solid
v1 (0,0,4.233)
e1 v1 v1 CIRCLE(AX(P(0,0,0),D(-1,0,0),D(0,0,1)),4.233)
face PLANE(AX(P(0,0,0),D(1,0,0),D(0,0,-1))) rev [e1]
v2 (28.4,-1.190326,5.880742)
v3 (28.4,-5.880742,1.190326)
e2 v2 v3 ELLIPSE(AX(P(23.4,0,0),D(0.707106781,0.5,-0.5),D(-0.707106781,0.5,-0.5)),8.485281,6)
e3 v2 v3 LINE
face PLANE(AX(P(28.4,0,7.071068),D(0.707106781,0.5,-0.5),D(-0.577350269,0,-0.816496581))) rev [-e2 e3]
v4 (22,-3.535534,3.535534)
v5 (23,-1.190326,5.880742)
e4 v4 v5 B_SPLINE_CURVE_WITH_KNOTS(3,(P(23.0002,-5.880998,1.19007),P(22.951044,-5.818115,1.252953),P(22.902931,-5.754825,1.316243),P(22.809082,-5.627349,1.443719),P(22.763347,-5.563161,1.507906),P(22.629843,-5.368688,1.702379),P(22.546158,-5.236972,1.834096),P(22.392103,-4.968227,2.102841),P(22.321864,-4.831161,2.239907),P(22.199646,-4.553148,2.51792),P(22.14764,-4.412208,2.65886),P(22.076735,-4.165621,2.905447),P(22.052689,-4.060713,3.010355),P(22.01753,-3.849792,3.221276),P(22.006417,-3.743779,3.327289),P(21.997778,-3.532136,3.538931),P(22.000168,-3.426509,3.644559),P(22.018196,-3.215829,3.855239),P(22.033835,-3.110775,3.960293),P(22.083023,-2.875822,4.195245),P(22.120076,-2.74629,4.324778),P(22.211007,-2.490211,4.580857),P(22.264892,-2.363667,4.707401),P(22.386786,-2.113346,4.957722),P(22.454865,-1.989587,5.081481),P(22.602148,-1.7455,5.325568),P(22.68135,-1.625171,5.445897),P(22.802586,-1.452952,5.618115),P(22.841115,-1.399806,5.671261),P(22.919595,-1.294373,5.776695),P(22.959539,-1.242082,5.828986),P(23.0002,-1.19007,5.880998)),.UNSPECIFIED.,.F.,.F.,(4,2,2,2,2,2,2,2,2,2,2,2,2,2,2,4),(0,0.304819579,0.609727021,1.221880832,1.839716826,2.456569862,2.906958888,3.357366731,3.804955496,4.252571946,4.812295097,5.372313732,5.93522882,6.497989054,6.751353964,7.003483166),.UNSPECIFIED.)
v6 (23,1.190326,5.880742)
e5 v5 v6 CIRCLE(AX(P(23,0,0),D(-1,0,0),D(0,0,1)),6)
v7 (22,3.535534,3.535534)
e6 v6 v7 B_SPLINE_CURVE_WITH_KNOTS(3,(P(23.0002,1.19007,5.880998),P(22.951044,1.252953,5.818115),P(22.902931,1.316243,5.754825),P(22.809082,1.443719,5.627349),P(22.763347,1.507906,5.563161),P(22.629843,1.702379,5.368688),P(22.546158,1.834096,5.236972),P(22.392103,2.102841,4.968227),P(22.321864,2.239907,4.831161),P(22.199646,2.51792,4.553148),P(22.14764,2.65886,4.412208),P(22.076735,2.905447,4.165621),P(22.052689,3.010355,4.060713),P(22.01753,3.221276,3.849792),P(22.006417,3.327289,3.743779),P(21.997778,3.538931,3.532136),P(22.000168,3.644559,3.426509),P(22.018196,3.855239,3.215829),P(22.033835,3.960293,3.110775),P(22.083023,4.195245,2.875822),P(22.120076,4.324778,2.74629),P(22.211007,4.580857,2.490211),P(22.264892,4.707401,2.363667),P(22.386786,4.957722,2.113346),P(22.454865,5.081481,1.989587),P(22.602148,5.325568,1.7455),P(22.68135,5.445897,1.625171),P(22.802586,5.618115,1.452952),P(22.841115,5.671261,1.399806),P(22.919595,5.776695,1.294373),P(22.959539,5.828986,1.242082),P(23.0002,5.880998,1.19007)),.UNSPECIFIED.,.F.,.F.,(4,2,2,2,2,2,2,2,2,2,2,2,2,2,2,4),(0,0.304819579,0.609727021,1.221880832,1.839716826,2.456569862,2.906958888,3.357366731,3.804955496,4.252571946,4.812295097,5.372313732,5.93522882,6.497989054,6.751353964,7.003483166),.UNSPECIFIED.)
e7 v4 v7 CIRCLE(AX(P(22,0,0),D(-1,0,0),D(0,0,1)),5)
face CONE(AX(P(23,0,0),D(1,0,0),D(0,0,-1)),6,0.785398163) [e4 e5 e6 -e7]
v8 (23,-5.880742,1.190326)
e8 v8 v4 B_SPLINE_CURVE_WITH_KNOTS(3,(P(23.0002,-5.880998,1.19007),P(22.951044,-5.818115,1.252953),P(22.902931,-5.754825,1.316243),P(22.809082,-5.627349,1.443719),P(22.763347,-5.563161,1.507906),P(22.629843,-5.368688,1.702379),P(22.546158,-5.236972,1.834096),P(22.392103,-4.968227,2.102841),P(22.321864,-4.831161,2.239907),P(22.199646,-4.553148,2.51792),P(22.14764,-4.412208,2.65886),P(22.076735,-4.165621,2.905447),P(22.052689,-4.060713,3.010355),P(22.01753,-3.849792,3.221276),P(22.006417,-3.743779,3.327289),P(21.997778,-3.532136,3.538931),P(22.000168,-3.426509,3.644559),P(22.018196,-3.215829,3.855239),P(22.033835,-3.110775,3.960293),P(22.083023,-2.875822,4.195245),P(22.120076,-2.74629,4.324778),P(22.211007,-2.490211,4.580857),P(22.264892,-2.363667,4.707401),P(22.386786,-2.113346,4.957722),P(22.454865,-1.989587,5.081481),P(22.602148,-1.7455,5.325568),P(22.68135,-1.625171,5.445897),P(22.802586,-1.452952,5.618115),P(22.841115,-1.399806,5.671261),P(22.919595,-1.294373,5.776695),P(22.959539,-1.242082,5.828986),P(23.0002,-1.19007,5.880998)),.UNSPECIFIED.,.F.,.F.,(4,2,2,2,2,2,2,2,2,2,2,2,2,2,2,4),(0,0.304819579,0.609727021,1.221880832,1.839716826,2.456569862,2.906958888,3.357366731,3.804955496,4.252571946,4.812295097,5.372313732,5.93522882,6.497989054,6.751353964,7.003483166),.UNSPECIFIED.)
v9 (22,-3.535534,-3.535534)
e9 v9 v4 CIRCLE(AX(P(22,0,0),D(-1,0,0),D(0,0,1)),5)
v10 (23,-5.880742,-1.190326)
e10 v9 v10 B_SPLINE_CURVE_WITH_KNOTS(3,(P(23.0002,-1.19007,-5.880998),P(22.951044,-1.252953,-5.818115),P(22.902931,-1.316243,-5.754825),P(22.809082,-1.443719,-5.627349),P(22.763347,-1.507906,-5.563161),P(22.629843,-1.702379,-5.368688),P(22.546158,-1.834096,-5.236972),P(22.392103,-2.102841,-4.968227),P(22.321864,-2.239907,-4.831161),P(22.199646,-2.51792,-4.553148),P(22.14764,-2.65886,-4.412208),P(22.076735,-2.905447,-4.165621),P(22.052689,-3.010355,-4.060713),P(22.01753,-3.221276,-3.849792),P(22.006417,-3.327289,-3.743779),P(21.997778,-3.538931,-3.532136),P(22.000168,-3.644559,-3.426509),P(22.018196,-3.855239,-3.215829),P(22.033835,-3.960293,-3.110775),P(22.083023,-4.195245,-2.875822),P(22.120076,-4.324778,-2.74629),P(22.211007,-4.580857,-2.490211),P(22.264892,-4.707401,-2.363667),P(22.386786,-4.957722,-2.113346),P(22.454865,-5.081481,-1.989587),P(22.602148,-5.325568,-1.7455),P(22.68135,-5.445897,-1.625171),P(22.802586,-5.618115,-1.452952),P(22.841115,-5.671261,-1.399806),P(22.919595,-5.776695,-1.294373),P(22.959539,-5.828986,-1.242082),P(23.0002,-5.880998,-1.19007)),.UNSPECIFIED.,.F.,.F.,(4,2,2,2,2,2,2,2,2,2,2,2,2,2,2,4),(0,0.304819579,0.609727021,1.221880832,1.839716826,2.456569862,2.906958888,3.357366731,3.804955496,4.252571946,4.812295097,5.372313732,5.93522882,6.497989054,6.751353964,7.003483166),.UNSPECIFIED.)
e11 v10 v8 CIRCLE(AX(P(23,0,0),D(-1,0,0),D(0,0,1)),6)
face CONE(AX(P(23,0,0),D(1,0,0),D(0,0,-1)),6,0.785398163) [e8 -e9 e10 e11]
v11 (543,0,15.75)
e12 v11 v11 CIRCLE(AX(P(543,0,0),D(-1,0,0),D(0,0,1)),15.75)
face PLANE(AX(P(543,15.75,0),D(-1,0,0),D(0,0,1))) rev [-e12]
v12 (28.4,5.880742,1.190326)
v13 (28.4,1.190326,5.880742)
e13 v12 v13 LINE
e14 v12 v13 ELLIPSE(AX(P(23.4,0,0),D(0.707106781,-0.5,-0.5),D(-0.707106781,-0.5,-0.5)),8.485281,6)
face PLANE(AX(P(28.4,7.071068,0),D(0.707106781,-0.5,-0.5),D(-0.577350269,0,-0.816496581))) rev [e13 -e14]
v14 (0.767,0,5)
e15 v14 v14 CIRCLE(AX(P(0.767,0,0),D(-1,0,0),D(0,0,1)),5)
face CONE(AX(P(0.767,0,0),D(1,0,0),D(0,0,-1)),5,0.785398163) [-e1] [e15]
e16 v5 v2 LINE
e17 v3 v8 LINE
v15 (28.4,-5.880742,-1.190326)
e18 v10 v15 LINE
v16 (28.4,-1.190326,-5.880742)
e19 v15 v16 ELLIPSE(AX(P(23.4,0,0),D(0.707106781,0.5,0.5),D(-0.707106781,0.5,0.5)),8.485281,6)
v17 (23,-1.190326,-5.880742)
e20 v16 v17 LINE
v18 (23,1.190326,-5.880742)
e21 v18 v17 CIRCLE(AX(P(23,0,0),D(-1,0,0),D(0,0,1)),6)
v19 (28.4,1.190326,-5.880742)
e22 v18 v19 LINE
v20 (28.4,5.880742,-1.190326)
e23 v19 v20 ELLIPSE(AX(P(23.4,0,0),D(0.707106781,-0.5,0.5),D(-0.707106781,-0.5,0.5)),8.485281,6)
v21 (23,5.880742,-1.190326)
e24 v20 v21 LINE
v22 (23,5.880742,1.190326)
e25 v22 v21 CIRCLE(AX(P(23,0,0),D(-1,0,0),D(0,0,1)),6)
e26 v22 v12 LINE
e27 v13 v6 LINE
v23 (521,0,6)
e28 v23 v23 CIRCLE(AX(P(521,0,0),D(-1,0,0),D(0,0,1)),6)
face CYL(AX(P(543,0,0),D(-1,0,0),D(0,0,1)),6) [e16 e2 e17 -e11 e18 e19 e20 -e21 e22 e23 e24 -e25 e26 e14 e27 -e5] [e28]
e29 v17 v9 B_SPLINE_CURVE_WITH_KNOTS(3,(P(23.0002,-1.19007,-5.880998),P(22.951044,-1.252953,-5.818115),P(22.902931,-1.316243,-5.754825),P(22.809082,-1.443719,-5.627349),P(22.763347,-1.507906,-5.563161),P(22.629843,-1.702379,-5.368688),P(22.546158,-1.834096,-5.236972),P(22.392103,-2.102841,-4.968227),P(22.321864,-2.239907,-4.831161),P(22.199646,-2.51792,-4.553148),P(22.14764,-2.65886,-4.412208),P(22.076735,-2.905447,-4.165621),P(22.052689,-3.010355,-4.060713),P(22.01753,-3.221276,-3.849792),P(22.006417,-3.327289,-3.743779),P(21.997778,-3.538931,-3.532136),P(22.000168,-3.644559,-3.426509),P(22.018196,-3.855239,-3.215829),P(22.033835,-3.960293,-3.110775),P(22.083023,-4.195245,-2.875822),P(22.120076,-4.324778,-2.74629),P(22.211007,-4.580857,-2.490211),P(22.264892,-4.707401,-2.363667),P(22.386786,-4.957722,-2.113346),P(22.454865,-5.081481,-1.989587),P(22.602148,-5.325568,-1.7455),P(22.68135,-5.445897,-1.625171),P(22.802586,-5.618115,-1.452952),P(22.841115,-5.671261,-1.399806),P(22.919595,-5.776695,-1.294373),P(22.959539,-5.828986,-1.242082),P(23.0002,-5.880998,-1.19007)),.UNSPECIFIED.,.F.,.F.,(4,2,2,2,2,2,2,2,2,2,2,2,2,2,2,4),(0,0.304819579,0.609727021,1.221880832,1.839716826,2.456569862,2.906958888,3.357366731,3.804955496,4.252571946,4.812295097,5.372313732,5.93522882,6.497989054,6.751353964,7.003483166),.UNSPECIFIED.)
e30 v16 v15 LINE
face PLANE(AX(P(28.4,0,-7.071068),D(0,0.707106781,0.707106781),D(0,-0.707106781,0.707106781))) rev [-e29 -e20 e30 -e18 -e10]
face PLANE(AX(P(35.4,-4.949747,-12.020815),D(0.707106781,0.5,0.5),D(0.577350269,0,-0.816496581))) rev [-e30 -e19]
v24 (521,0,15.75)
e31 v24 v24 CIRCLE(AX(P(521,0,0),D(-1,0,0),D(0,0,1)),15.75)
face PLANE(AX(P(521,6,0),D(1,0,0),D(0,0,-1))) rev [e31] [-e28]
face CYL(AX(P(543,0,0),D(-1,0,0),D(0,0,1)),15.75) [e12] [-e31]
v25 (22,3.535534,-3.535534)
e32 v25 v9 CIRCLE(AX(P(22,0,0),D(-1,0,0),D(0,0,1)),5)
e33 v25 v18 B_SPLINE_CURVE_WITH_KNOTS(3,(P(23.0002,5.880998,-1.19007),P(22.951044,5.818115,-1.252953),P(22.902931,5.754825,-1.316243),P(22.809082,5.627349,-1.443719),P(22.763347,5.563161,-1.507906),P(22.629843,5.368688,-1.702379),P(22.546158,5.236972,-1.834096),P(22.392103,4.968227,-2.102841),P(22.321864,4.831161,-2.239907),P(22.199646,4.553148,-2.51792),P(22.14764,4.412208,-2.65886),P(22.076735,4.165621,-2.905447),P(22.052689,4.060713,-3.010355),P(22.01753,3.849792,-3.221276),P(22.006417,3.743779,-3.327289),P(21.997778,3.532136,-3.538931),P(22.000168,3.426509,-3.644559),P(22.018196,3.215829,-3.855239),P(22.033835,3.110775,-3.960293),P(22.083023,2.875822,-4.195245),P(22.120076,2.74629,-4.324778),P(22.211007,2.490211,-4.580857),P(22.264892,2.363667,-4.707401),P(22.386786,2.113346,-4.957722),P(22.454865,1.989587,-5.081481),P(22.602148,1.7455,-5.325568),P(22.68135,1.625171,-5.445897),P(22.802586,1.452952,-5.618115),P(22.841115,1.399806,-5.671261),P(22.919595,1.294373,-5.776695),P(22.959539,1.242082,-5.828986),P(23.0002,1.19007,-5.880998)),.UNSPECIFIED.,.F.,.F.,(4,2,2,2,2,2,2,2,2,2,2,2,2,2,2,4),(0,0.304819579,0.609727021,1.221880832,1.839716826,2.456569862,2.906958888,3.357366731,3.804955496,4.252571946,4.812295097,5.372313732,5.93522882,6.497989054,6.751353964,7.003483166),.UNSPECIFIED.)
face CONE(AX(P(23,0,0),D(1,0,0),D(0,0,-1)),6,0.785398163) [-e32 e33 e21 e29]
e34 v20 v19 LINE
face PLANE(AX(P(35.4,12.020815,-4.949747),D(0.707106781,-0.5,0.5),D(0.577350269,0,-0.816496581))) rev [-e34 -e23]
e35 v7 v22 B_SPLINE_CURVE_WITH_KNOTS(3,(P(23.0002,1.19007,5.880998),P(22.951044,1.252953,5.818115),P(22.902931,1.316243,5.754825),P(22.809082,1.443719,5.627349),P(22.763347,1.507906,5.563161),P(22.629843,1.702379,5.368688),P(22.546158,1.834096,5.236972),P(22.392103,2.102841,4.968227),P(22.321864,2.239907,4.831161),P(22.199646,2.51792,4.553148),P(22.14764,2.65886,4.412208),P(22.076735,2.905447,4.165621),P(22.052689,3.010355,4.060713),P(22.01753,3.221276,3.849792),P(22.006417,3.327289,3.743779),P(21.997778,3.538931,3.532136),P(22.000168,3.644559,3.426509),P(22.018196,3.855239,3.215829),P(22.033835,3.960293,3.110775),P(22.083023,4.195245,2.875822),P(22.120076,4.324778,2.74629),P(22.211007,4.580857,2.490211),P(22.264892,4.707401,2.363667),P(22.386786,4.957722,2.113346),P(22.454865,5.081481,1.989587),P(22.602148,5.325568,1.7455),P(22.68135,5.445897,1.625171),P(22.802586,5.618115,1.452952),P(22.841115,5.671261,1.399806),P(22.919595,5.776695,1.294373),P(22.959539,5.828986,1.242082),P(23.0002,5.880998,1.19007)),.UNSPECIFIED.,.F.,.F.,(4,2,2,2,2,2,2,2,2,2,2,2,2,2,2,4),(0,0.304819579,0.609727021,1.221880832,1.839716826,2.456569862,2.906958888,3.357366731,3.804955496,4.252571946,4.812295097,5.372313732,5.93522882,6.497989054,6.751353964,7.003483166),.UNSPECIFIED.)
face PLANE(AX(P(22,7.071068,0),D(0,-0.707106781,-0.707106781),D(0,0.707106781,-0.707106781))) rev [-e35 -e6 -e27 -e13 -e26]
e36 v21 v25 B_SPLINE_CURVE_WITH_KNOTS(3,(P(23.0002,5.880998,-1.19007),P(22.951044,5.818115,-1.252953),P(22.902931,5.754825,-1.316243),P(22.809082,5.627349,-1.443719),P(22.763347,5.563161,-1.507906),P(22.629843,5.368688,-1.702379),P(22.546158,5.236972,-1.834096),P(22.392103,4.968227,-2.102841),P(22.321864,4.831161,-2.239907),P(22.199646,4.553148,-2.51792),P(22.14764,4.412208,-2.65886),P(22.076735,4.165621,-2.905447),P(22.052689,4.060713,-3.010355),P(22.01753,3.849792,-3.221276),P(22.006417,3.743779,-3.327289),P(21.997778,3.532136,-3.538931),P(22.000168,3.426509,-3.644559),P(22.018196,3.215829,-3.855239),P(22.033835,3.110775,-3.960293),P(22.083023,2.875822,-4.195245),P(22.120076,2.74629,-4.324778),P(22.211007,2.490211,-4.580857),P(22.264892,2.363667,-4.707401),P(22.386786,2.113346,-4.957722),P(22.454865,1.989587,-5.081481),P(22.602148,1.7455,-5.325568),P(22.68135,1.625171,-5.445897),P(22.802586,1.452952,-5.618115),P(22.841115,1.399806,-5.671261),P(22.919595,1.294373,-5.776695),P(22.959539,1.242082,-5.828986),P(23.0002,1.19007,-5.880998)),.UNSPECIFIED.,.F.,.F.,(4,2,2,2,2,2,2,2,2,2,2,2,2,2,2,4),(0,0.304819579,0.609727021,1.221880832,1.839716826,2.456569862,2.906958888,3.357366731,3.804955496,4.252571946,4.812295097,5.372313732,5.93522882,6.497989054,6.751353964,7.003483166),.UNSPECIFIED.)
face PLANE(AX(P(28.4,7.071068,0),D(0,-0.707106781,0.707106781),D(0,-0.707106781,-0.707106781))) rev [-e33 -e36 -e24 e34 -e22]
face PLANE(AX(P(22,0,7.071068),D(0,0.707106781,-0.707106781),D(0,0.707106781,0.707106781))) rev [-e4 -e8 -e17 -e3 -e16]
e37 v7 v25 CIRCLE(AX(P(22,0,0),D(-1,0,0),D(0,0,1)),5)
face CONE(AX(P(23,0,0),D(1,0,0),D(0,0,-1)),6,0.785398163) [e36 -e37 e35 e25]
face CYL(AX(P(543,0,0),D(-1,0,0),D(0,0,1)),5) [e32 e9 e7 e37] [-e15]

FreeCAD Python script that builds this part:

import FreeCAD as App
import Part
import Sketcher
from FreeCAD import Vector
Q = App.Units.Quantity

doc = App.newDocument("Part")
body = doc.addObject("PartDesign::Body", "Body")

# Sketch on XY plane
sketch1 = body.newObject("Sketcher::SketchObject", "Sketch")
sketch1.AttachmentSupport = (doc.getObject("XY_Plane"), [""])
sketch1.MapMode = "FlatFace"
sketch1.addGeometry([
    Part.LineSegment(Vector(0, 4.2, 0), Vector(0, 0, 0)),  # 0
    Part.LineSegment(Vector(0, 0, 0), Vector(543, 0, 0)),  # 1
    Part.LineSegment(Vector(543, 0, 0), Vector(543, 15.8, 0)),  # 2
    Part.LineSegment(Vector(543, 15.8, 0), Vector(521, 15.8, 0)),  # 3
    Part.LineSegment(Vector(521, 15.8, 0), Vector(521, 6, 0)),  # 4
    Part.LineSegment(Vector(521, 6, 0), Vector(23, 6, 0)),  # 5
    Part.LineSegment(Vector(23, 6, 0), Vector(22, 5, 0)),  # 6
    Part.LineSegment(Vector(22, 5, 0), Vector(0.8, 5, 0)),  # 7
    Part.LineSegment(Vector(0.8, 5, 0), Vector(0, 4.2, 0)),  # 8
], False)
sketch1.addConstraint([
    Sketcher.Constraint("Coincident", 0, 2, 1, 1),
    Sketcher.Constraint("Coincident", 1, 2, 2, 1),
    Sketcher.Constraint("Coincident", 2, 2, 3, 1),
    Sketcher.Constraint("Coincident", 3, 2, 4, 1),
    Sketcher.Constraint("Coincident", 4, 2, 5, 1),
    Sketcher.Constraint("Coincident", 5, 2, 6, 1),
    Sketcher.Constraint("Coincident", 6, 2, 7, 1),
    Sketcher.Constraint("Coincident", 7, 2, 8, 1),
    Sketcher.Constraint("Coincident", 8, 2, 0, 1),
    Sketcher.Constraint("Vertical", 0),
    Sketcher.Constraint("Horizontal", 1),
    Sketcher.Constraint("Vertical", 2),
    Sketcher.Constraint("Horizontal", 3),
    Sketcher.Constraint("Vertical", 4),
    Sketcher.Constraint("Horizontal", 5),
    Sketcher.Constraint("Horizontal", 7),
    Sketcher.Constraint("Coincident", 0, 2, -1, 1),
    Sketcher.Constraint("Parallel", 6, 8),
    Sketcher.Constraint("DistanceX", 1, 1, 1, 2, 543.0),
    Sketcher.Constraint("DistanceX", 3, 2, 3, 1, 22.0),
    Sketcher.Constraint("DistanceX", 5, 2, 5, 1, 498.0),
    Sketcher.Constraint("Angle", 6, Q("-135 deg")),
    Sketcher.Constraint("DistanceY", -1, 1, 4, 2, 6.0),
    Sketcher.Constraint("DistanceX", -1, 1, 6, 2, 22.0),
    Sketcher.Constraint("DistanceY", 2, 1, 2, 2, 15.75),
    Sketcher.Constraint("DistanceX", 7, 2, 7, 1, 21.233),
])
revolution = body.newObject("PartDesign::Revolution", "Revolution")
revolution.Profile = sketch1
revolution.ReferenceAxis = (sketch1, ["H_Axis"])
revolution.Angle = 360

# Sketch on an angled plane
sketch2 = body.newObject("Sketcher::SketchObject", "Sketch001")
sketch2.Placement = App.Placement(Vector(0, 0, 0), App.Rotation(Vector(1, 0, 0), Vector(0, 0.707106781, 0.707106781), Vector(0, -0.707106781, 0.707106781), "ZXY"))
sketch2.addGeometry([
    Part.LineSegment(Vector(-5, -12, 0), Vector(35.4, -12, 0)),  # 0
    Part.LineSegment(Vector(35.4, -12, 0), Vector(28.4, -5, 0)),  # 1
    Part.LineSegment(Vector(28.4, -5, 0), Vector(22, -5, 0)),  # 2
    Part.LineSegment(Vector(22, -5, 0), Vector(19.8, -7.2, 0)),  # 3
    Part.LineSegment(Vector(19.8, -7.2, 0), Vector(19.8, -10, 0)),  # 4
    Part.LineSegment(Vector(19.8, -10, 0), Vector(-3, -10, 0)),  # 5
    Part.LineSegment(Vector(-3, -10, 0), Vector(-3, 10, 0)),  # 6
    Part.LineSegment(Vector(-3, 10, 0), Vector(19.8, 10, 0)),  # 7
    Part.LineSegment(Vector(19.8, 10, 0), Vector(19.8, 7.2, 0)),  # 8
    Part.LineSegment(Vector(19.8, 7.2, 0), Vector(22, 5, 0)),  # 9
    Part.LineSegment(Vector(22, 5, 0), Vector(28.4, 5, 0)),  # 10
    Part.LineSegment(Vector(28.4, 5, 0), Vector(35.4, 12, 0)),  # 11
    Part.LineSegment(Vector(35.4, 12, 0), Vector(-5, 12, 0)),  # 12
    Part.LineSegment(Vector(-5, 12, 0), Vector(-5, -12, 0)),  # 13
], False)
sketch2.addConstraint([
    Sketcher.Constraint("Coincident", 0, 2, 1, 1),
    Sketcher.Constraint("Coincident", 1, 2, 2, 1),
    Sketcher.Constraint("Coincident", 2, 2, 3, 1),
    Sketcher.Constraint("Coincident", 3, 2, 4, 1),
    Sketcher.Constraint("Coincident", 4, 2, 5, 1),
    Sketcher.Constraint("Coincident", 5, 2, 6, 1),
    Sketcher.Constraint("Coincident", 6, 2, 7, 1),
    Sketcher.Constraint("Coincident", 7, 2, 8, 1),
    Sketcher.Constraint("Coincident", 8, 2, 9, 1),
    Sketcher.Constraint("Coincident", 9, 2, 10, 1),
    Sketcher.Constraint("Coincident", 10, 2, 11, 1),
    Sketcher.Constraint("Coincident", 11, 2, 12, 1),
    Sketcher.Constraint("Coincident", 12, 2, 13, 1),
    Sketcher.Constraint("Coincident", 13, 2, 0, 1),
    Sketcher.Constraint("Horizontal", 0),
    Sketcher.Constraint("Horizontal", 2),
    Sketcher.Constraint("Vertical", 4),
    Sketcher.Constraint("Horizontal", 5),
    Sketcher.Constraint("Vertical", 6),
    Sketcher.Constraint("Horizontal", 7),
    Sketcher.Constraint("Vertical", 8),
    Sketcher.Constraint("Horizontal", 10),
    Sketcher.Constraint("Horizontal", 12),
    Sketcher.Constraint("Vertical", 13),
    Sketcher.Constraint("Symmetric", 4, 2, 7, 2, -1),
    Sketcher.Constraint("Symmetric", 2, 2, 9, 2, -1),
    Sketcher.Constraint("Symmetric", 0, 2, 11, 2, -1),
    Sketcher.Constraint("Perpendicular", 1, 3),
    Sketcher.Constraint("Perpendicular", 3, 9),
    Sketcher.Constraint("Perpendicular", 9, 11),
    Sketcher.Constraint("Vertical", 1, 2, 10, 2),
    Sketcher.Constraint("DistanceY", 6, 1, 6, 2, 20.0),
    Sketcher.Constraint("DistanceY", 13, 2, 13, 1, 24.0),
    Sketcher.Constraint("DistanceX", 0, 1, 0, 2, 40.4),
    Sketcher.Constraint("DistanceX", 2, 2, 2, 1, 6.4),
    Sketcher.Constraint("DistanceX", 5, 2, 5, 1, 22.8),
    Sketcher.Constraint("DistanceY", 4, 2, 4, 1, 2.8),
    Sketcher.Constraint("DistanceY", 1, 2, -1, 1, 5.0),
    Sketcher.Constraint("DistanceX", -1, 1, 2, 2, 22.0),
])
pocket1 = body.newObject("PartDesign::Pocket", "Pocket")
pocket1.Profile = sketch2
pocket1.Type = "ThroughAll"
pocket1.Midplane = True

# Sketch on an angled plane
sketch3 = body.newObject("Sketcher::SketchObject", "Sketch002")
sketch3.Placement = App.Placement(Vector(0, 0, 0), App.Rotation(Vector(-1, 0, 0), Vector(0, 0.707106781, -0.707106781), Vector(0, -0.707106781, -0.707106781), "ZXY"))
sketch3.addGeometry([
    Part.LineSegment(Vector(5, 12, 0), Vector(-35.4, 12, 0)),  # 0
    Part.LineSegment(Vector(-35.4, 12, 0), Vector(-28.4, 5, 0)),  # 1
    Part.LineSegment(Vector(-28.4, 5, 0), Vector(-22, 5, 0)),  # 2
    Part.LineSegment(Vector(-22, 5, 0), Vector(-19.8, 7.2, 0)),  # 3
    Part.LineSegment(Vector(-19.8, 7.2, 0), Vector(-19.8, 10, 0)),  # 4
    Part.LineSegment(Vector(-19.8, 10, 0), Vector(3, 10, 0)),  # 5
    Part.LineSegment(Vector(3, 10, 0), Vector(3, -10, 0)),  # 6
    Part.LineSegment(Vector(3, -10, 0), Vector(-19.8, -10, 0)),  # 7
    Part.LineSegment(Vector(-19.8, -10, 0), Vector(-19.8, -7.2, 0)),  # 8
    Part.LineSegment(Vector(-19.8, -7.2, 0), Vector(-22, -5, 0)),  # 9
    Part.LineSegment(Vector(-22, -5, 0), Vector(-28.4, -5, 0)),  # 10
    Part.LineSegment(Vector(-28.4, -5, 0), Vector(-35.4, -12, 0)),  # 11
    Part.LineSegment(Vector(-35.4, -12, 0), Vector(5, -12, 0)),  # 12
    Part.LineSegment(Vector(5, -12, 0), Vector(5, 12, 0)),  # 13
], False)
sketch3.addConstraint([
    Sketcher.Constraint("Coincident", 0, 2, 1, 1),
    Sketcher.Constraint("Coincident", 1, 2, 2, 1),
    Sketcher.Constraint("Coincident", 2, 2, 3, 1),
    Sketcher.Constraint("Coincident", 3, 2, 4, 1),
    Sketcher.Constraint("Coincident", 4, 2, 5, 1),
    Sketcher.Constraint("Coincident", 5, 2, 6, 1),
    Sketcher.Constraint("Coincident", 6, 2, 7, 1),
    Sketcher.Constraint("Coincident", 7, 2, 8, 1),
    Sketcher.Constraint("Coincident", 8, 2, 9, 1),
    Sketcher.Constraint("Coincident", 9, 2, 10, 1),
    Sketcher.Constraint("Coincident", 10, 2, 11, 1),
    Sketcher.Constraint("Coincident", 11, 2, 12, 1),
    Sketcher.Constraint("Coincident", 12, 2, 13, 1),
    Sketcher.Constraint("Coincident", 13, 2, 0, 1),
    Sketcher.Constraint("Horizontal", 0),
    Sketcher.Constraint("Horizontal", 2),
    Sketcher.Constraint("Vertical", 4),
    Sketcher.Constraint("Horizontal", 5),
    Sketcher.Constraint("Vertical", 6),
    Sketcher.Constraint("Horizontal", 7),
    Sketcher.Constraint("Vertical", 8),
    Sketcher.Constraint("Horizontal", 10),
    Sketcher.Constraint("Horizontal", 12),
    Sketcher.Constraint("Vertical", 13),
    Sketcher.Constraint("Symmetric", 4, 2, 7, 2, -1),
    Sketcher.Constraint("Symmetric", 2, 2, 9, 2, -1),
    Sketcher.Constraint("Symmetric", 0, 2, 11, 2, -1),
    Sketcher.Constraint("Perpendicular", 1, 3),
    Sketcher.Constraint("Perpendicular", 3, 9),
    Sketcher.Constraint("Perpendicular", 9, 11),
    Sketcher.Constraint("Vertical", 1, 2, 10, 2),
    Sketcher.Constraint("DistanceY", 6, 2, 6, 1, 20.0),
    Sketcher.Constraint("DistanceY", 13, 1, 13, 2, 24.0),
    Sketcher.Constraint("DistanceX", 0, 2, 0, 1, 40.4),
    Sketcher.Constraint("DistanceX", 2, 1, 2, 2, 6.4),
    Sketcher.Constraint("DistanceX", 5, 1, 5, 2, 22.8),
    Sketcher.Constraint("DistanceY", 4, 1, 4, 2, 2.8),
    Sketcher.Constraint("DistanceY", -1, 1, 1, 2, 5.0),
    Sketcher.Constraint("DistanceX", 2, 2, -1, 1, 22.0),
])
pocket2 = body.newObject("PartDesign::Pocket", "Pocket001")
pocket2.Profile = sketch3
pocket2.Type = "ThroughAll"
pocket2.Midplane = True

doc.recompute()
